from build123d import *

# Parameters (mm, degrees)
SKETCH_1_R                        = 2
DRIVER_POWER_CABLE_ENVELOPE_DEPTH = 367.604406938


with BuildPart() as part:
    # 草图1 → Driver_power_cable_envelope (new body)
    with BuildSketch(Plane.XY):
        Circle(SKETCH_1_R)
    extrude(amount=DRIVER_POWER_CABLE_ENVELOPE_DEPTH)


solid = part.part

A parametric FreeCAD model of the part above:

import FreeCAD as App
import Part
import Sketcher

V = App.Vector

doc = App.newDocument("Part")
body = doc.addObject("PartDesign::Body", "Body")

# Sketch on XY plane
sketch1 = doc.addObject("Sketcher::SketchObject", "Sketch")
body.addObject(sketch1)
sketch1.AttachmentSupport = (doc.XY_Plane, [""])
sketch1.MapMode = "FlatFace"
sketch1.addGeometry(Part.Circle(V(0, 0, 0), V(0, 0, 1), 2), False)
sketch1.addConstraint([
    Sketcher.Constraint("Coincident", 0, 3, -1, 1),
    Sketcher.Constraint("Diameter", 0, 4.0),
])
pad1 = doc.addObject("PartDesign::Pad", "Pad")
body.addObject(pad1)
pad1.Profile = sketch1
pad1.Length = 367.604407

doc.recompute()
